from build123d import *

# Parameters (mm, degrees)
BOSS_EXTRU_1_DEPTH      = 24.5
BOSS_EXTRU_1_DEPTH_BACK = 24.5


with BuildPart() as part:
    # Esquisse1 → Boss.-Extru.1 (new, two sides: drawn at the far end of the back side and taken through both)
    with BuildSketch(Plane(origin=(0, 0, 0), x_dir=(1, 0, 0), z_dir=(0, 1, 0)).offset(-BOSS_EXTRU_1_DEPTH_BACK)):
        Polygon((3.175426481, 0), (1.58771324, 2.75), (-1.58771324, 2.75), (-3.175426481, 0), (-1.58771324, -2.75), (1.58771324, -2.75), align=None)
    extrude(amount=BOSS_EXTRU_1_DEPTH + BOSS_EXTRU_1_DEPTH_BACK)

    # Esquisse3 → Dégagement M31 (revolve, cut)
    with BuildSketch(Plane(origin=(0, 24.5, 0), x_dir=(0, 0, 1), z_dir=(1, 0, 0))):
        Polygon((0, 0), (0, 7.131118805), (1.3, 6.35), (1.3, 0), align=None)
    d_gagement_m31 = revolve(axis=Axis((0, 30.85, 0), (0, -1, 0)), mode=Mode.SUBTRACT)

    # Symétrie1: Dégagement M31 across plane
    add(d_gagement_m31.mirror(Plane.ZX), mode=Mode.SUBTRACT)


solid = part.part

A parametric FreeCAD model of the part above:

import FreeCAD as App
import Part
import Sketcher

V = App.Vector
Q = App.Units.Quantity


def add_polygon(sketch, points):
    """Adds a closed chain of lines whose ends are joined by coincident constraints."""
    first, n = sketch.GeometryCount, len(points)
    for a, b in zip(points, points[1:] + points[:1]):
        sketch.addGeometry(Part.LineSegment(App.Vector(*a, 0), App.Vector(*b, 0)), False)
    for i in range(n):
        sketch.addConstraint(Sketcher.Constraint("Coincident", first + i, 2, first + (i + 1) % n, 1))

doc = App.newDocument("Part")
body = doc.addObject("PartDesign::Body", "Body")

# Sketch on XZ plane
sketch1 = body.newObject("Sketcher::SketchObject", "Sketch")
sketch1.AttachmentSupport = (doc.getObject("XZ_Plane"), [""])
sketch1.MapMode = "FlatFace"
add_polygon(sketch1, [(3.2, 0), (1.6, -2.8), (-1.6, -2.8), (-3.2, 0), (-1.6, 2.8), (1.6, 2.8)])  # lines 0-5
sketch1.addConstraint([
    Sketcher.Constraint("Horizontal", 1),
    Sketcher.Constraint("Horizontal", 4),
    Sketcher.Constraint("Symmetric", 0, 2, 3, 2, -1, 1),
    Sketcher.Constraint("Symmetric", 2, 2, 5, 2, -1, 1),
    Sketcher.Constraint("PointOnObject", 2, 2, -1),
    Sketcher.Constraint("Parallel", 2, 5),
    Sketcher.Constraint("Vertical", 1, 2, 3, 2),
    Sketcher.Constraint("Angle", 0, Q("-120 deg")),
    Sketcher.Constraint("DistanceY", 1, 2, 3, 2, 5.5),
    Sketcher.Constraint("DistanceX", 1, 2, 1, 1, 3.175426),
])
pad1 = body.newObject("PartDesign::Pad", "Pad")
pad1.Profile = sketch1
pad1.Type = "TwoLengths"
pad1.Length = 24.5
pad1.Length2 = 24.5
pad1.Reversed = True

# Sketch on YZ plane
sketch2 = body.newObject("Sketcher::SketchObject", "Sketch001")
sketch2.AttachmentSupport = (doc.getObject("YZ_Plane"), [""])
sketch2.MapMode = "FlatFace"
add_polygon(sketch2, [(17.4, 0), (24.5, 0), (24.5, 1.3), (18.1, 1.3)])  # lines 0-3
sketch2.addConstraint([
    Sketcher.Constraint("Horizontal", 0),
    Sketcher.Constraint("Vertical", 1),
    Sketcher.Constraint("Horizontal", 2),
    Sketcher.Constraint("PointOnObject", 0, 2, -1),
    Sketcher.Constraint("Angle", 3, Q("-121 deg")),
    Sketcher.Constraint("DistanceY", 1, 1, 1, 2, 1.3),
    Sketcher.Constraint("DistanceX", 2, 2, 2, 1, 6.35),
    Sketcher.Constraint("DistanceX", -1, 1, 0, 2, 24.5),
])
groove = body.newObject("PartDesign::Groove", "Groove")
groove.Profile = sketch2
groove.ReferenceAxis = (sketch2, ["H_Axis"])
groove.Angle = 360
doc.recompute()

mirrored = body.newObject("PartDesign::Mirrored", "Mirrored")
mirrored.Originals = [groove]
mirrored.MirrorPlane = (doc.getObject("XZ_Plane"), [""])
body.Tip = mirrored

doc.recompute()
